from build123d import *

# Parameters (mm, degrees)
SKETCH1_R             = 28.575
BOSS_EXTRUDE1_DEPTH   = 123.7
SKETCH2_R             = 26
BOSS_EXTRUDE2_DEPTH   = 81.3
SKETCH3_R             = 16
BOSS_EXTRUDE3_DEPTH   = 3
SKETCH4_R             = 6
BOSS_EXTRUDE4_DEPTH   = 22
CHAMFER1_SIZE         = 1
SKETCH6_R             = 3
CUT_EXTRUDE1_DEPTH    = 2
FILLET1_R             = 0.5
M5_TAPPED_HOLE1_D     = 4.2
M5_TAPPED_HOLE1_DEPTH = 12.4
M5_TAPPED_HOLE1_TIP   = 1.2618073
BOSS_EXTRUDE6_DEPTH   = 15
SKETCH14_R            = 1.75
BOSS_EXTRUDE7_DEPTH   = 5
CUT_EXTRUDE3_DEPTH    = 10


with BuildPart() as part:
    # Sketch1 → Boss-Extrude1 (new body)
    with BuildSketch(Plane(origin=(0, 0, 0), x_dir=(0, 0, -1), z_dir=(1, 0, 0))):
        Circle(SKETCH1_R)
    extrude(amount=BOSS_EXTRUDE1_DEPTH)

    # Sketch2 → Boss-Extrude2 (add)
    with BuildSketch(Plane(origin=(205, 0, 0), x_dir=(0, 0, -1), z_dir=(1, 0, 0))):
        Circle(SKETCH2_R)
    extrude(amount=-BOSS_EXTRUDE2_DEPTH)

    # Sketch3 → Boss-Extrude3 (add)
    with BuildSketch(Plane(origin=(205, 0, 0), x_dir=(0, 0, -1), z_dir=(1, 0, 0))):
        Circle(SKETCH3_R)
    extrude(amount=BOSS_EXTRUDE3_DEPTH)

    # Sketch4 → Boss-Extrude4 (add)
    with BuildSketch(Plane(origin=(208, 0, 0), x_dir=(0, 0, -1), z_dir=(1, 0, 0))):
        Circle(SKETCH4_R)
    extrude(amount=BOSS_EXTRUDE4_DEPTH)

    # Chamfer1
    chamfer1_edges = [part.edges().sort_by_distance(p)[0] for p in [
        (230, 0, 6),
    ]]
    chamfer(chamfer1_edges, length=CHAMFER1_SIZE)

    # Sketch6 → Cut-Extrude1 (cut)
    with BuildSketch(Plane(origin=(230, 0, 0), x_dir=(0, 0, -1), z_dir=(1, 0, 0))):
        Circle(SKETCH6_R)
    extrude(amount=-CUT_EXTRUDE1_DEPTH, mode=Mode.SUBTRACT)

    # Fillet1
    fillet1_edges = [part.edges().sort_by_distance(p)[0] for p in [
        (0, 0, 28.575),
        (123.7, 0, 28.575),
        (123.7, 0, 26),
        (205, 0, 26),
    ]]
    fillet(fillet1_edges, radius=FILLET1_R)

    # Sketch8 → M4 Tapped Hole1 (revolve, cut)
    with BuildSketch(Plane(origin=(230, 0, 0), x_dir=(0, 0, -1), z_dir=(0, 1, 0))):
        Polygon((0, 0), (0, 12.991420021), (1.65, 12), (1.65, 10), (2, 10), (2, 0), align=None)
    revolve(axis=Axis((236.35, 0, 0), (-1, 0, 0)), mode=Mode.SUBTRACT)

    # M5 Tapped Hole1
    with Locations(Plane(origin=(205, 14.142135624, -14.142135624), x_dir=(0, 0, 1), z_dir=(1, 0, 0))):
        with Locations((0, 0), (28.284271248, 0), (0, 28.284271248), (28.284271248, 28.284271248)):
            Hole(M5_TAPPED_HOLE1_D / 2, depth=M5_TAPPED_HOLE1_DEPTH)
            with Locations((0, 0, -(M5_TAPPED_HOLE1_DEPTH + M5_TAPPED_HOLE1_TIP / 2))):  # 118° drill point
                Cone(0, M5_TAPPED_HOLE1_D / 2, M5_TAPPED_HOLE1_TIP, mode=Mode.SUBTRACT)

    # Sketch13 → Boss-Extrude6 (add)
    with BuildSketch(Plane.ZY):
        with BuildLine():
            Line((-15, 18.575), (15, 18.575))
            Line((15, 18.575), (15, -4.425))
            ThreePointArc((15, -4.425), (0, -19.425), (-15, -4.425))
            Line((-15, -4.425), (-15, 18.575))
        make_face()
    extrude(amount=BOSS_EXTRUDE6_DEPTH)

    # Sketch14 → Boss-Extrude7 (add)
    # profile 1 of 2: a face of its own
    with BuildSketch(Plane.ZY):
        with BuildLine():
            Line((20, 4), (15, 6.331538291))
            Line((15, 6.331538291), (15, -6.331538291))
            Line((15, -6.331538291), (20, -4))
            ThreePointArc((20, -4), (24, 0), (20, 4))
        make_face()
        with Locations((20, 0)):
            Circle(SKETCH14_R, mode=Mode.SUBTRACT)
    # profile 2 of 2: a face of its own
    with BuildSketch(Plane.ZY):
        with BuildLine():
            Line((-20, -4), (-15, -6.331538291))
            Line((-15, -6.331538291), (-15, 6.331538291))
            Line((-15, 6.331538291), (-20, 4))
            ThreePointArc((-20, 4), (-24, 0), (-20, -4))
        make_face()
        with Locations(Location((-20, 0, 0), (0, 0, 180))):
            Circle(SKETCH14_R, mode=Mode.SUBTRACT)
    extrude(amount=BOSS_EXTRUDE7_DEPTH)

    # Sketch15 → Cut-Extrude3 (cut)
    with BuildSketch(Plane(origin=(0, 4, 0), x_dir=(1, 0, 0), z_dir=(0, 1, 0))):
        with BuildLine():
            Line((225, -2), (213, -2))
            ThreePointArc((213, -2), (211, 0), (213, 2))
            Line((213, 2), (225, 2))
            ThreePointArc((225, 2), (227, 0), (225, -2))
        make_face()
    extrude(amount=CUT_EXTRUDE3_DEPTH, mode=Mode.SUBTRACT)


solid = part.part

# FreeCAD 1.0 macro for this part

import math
import FreeCAD as App
import Part
import Sketcher

V = App.Vector
Q = App.Units.Quantity


def edges_at(feature, points):
    """Names of the edges that pass closest to the given points."""
    edges = feature.Shape.Edges
    near = lambda p: min(range(len(edges)), key=lambda i: edges[i].distToShape(Part.Vertex(*p))[0])
    return sorted({f"Edge{near(p) + 1}" for p in points})

doc = App.newDocument("Part")
body = doc.addObject("PartDesign::Body", "Body")

sketch1 = body.newObject("Sketcher::SketchObject", "Sketch")
sketch1.AttachmentSupport = (doc.getObject("YZ_Plane"), [""])
sketch1.MapMode = "FlatFace"
sketch1.addGeometry(Part.Circle(V(0, 0, 0), V(0, 0, 1), 29), False)
sketch1.addConstraint([
    Sketcher.Constraint("Coincident", 0, 3, -1, 1),
    Sketcher.Constraint("Diameter", 0, Q("57.15 mm")),
])
pad1 = body.newObject("PartDesign::Pad", "Pad")
pad1.Profile = sketch1
pad1.Length = 123.7

sketch2 = body.newObject("Sketcher::SketchObject", "Sketch001")
sketch2.AttachmentSupport = (doc.getObject("YZ_Plane"), [""])
sketch2.MapMode = "FlatFace"
sketch2.AttachmentOffset = App.Placement(V(0, 0, 205), App.Rotation())
sketch2.addGeometry(Part.Circle(V(0, 0, 0), V(0, 0, 1), 26), False)
sketch2.addConstraint([
    Sketcher.Constraint("Coincident", 0, 3, -1, 1),
    Sketcher.Constraint("Diameter", 0, Q("52 mm")),
])
pad2 = body.newObject("PartDesign::Pad", "Pad001")
pad2.Profile = sketch2
pad2.Length = 81.3
pad2.Reversed = True

sketch3 = body.newObject("Sketcher::SketchObject", "Sketch002")
sketch3.AttachmentSupport = (doc.getObject("YZ_Plane"), [""])
sketch3.MapMode = "FlatFace"
sketch3.AttachmentOffset = App.Placement(V(0, 0, 205), App.Rotation())
sketch3.addGeometry(Part.Circle(V(0, 0, 0), V(0, 0, 1), 16), False)
sketch3.addConstraint([
    Sketcher.Constraint("Coincident", 0, 3, -1, 1),
    Sketcher.Constraint("Diameter", 0, Q("32 mm")),
])
pad3 = body.newObject("PartDesign::Pad", "Pad002")
pad3.Profile = sketch3
pad3.Length = 3

sketch4 = body.newObject("Sketcher::SketchObject", "Sketch003")
sketch4.AttachmentSupport = (doc.getObject("YZ_Plane"), [""])
sketch4.MapMode = "FlatFace"
sketch4.AttachmentOffset = App.Placement(V(0, 0, 208), App.Rotation())
sketch4.addGeometry(Part.Circle(V(0, 0, 0), V(0, 0, 1), 6), False)
sketch4.addConstraint([
    Sketcher.Constraint("Coincident", 0, 3, -1, 1),
    Sketcher.Constraint("Diameter", 0, Q("12 mm")),
])
pad4 = body.newObject("PartDesign::Pad", "Pad003")
pad4.Profile = sketch4
pad4.Length = 22
doc.recompute()

chamfer = body.newObject("PartDesign::Chamfer", "Chamfer")
chamfer.Base = (pad4, edges_at(pad4, [(230, 0, 6)]))
chamfer.Size = 1

sketch5 = body.newObject("Sketcher::SketchObject", "Sketch004")
sketch5.AttachmentSupport = (doc.getObject("YZ_Plane"), [""])
sketch5.MapMode = "FlatFace"
sketch5.AttachmentOffset = App.Placement(V(0, 0, 230), App.Rotation())
sketch5.addGeometry(Part.Circle(V(0, 0, 0), V(0, 0, 1), 3), False)
sketch5.addConstraint([
    Sketcher.Constraint("Coincident", 0, 3, -1, 1),
    Sketcher.Constraint("Diameter", 0, Q("6 mm")),
])
pocket1 = body.newObject("PartDesign::Pocket", "Pocket")
pocket1.Profile = sketch5
pocket1.Length = 2
doc.recompute()

fillet = body.newObject("PartDesign::Fillet", "Fillet")
fillet.Base = (pocket1, edges_at(pocket1, [
    (0, 0, 28.575),
    (123.7, 0, 28.575),
    (123.7, 0, 26),
    (205, 0, 26),
]))
fillet.Radius = 0.5

sketch6 = body.newObject("Sketcher::SketchObject", "Sketch005")
sketch6.AttachmentSupport = (doc.getObject("XZ_Plane"), [""])
sketch6.MapMode = "FlatFace"
sketch6.addGeometry([
    Part.LineSegment(V(217.01, 0, 0), V(230, 0, 0)),
    Part.LineSegment(V(230, 0, 0), V(230, -2, 0)),
    Part.LineSegment(V(230, -2, 0), V(220, -2, 0)),
    Part.LineSegment(V(220, -2, 0), V(220, -1.65, 0)),
    Part.LineSegment(V(220, -1.65, 0), V(218, -1.65, 0)),
    Part.LineSegment(V(218, -1.65, 0), V(217.01, 0, 0)),
], False)
sketch6.addConstraint([
    Sketcher.Constraint("Coincident", 0, 2, 1, 1),
    Sketcher.Constraint("Coincident", 1, 2, 2, 1),
    Sketcher.Constraint("Coincident", 2, 2, 3, 1),
    Sketcher.Constraint("Coincident", 3, 2, 4, 1),
    Sketcher.Constraint("Coincident", 4, 2, 5, 1),
    Sketcher.Constraint("Coincident", 5, 2, 0, 1),
    Sketcher.Constraint("Horizontal", 0),
    Sketcher.Constraint("Vertical", 1),
    Sketcher.Constraint("Horizontal", 2),
    Sketcher.Constraint("Vertical", 3),
    Sketcher.Constraint("Horizontal", 4),
    Sketcher.Constraint("PointOnObject", 0, 2, -1),
    Sketcher.Constraint("Equal", 4, 1),
    Sketcher.Constraint("DistanceX", 2, 2, 2, 1, Q("10 mm")),
    Sketcher.Constraint("DistanceX", 4, 2, 4, 1, Q("2 mm")),
    Sketcher.Constraint("Angle", 5, Q("121 deg")),
    Sketcher.Constraint("DistanceX", -1, 1, 0, 2, Q("230 mm")),
    Sketcher.Constraint("DistanceY", 3, 1, 3, 2, Q("0.35 mm")),
])
groove = body.newObject("PartDesign::Groove", "Groove")
groove.Profile = sketch6
groove.ReferenceAxis = (sketch6, ["H_Axis"])
groove.Angle = 360

sketch7 = body.newObject("Sketcher::SketchObject", "Sketch006")
sketch7.AttachmentSupport = (doc.getObject("YZ_Plane"), [""])
sketch7.MapMode = "FlatFace"
sketch7.AttachmentOffset = App.Placement(V(0, 0, 205), App.Rotation())
sketch7.addGeometry([
    Part.Circle(V(14.1, -14.1, 0), V(0, 0, 1), 2.1),
    Part.Circle(V(14.1, 14.1, 0), V(0, 0, 1), 2.1),
    Part.Circle(V(-14.1, -14.1, 0), V(0, 0, 1), 2.1),
    Part.Circle(V(-14.1, 14.1, 0), V(0, 0, 1), 2.1),
], False)
sketch7.addConstraint([
    Sketcher.Constraint("Equal", 0, 1),
    Sketcher.Constraint("Equal", 1, 2),
    Sketcher.Constraint("Equal", 2, 3),
    Sketcher.Constraint("Symmetric", 1, 3, 2, 3, -1, 1),
    Sketcher.Constraint("Symmetric", 0, 3, 3, 3, -1, 1),
    Sketcher.Constraint("Symmetric", 0, 3, 2, 3, -2),
    Sketcher.Constraint("Diameter", 0, Q("4.2 mm")),
    Sketcher.Constraint("DistanceY", 0, 3, 1, 3, Q("28.284271 mm")),
    Sketcher.Constraint("DistanceX", 2, 3, 0, 3, Q("28.284271 mm")),
])
doc.recompute()
hole = body.newObject("PartDesign::Hole", "Hole")
hole.Profile = sketch7
hole.ThreadType = "None"
hole.Diameter = 4.2
hole.DepthType = "Dimension"
hole.Depth = 12.4
hole.DrillPoint = "Angled"
hole.DrillPointAngle = 118

sketch8 = body.newObject("Sketcher::SketchObject", "Sketch007")
sketch8.AttachmentSupport = (doc.getObject("YZ_Plane"), [""])
sketch8.MapMode = "FlatFace"
sketch8.addGeometry([
    Part.LineSegment(V(19, 15, 0), V(19, -15, 0)),
    Part.LineSegment(V(19, -15, 0), V(-4, -15, 0)),
    Part.ArcOfCircle(Part.Circle(V(-4, 0, 0), V(0, 0, 1), 15), math.radians(90), math.radians(270)),
    Part.LineSegment(V(-4, 15, 0), V(19, 15, 0)),
], False)
sketch8.addConstraint([
    Sketcher.Constraint("Coincident", 0, 2, 1, 1),
    Sketcher.Constraint("Tangent", 1, 2, 2, 2),
    Sketcher.Constraint("Tangent", 2, 1, 3, 1),
    Sketcher.Constraint("Coincident", 3, 2, 0, 1),
    Sketcher.Constraint("Vertical", 0),
    Sketcher.Constraint("Horizontal", 1),
    Sketcher.Constraint("Horizontal", 3),
    Sketcher.Constraint("PointOnObject", 2, 3, -1),
    Sketcher.Constraint("Radius", 2, Q("15 mm")),
    Sketcher.Constraint("DistanceX", 1, 2, 1, 1, Q("23 mm")),
    Sketcher.Constraint("DistanceX", 2, 3, -1, 1, Q("4.425 mm")),
])
pad5 = body.newObject("PartDesign::Pad", "Pad004")
pad5.Profile = sketch8
pad5.Length = 15
pad5.Reversed = True

sketch9 = body.newObject("Sketcher::SketchObject", "Sketch008")
sketch9.AttachmentSupport = (doc.getObject("YZ_Plane"), [""])
sketch9.MapMode = "FlatFace"
sketch9.addGeometry([
    Part.LineSegment(V(4, 20, 0), V(6.3, 15, 0)),
    Part.LineSegment(V(6.3, 15, 0), V(-6.3, 15, 0)),
    Part.LineSegment(V(-6.3, 15, 0), V(-4, 20, 0)),
    Part.ArcOfCircle(Part.Circle(V(0, 20, 0), V(0, 0, 1), 4), math.radians(0), math.radians(180)),
    Part.Circle(V(0, 20, 0), V(0, 0, 1), 1.8),
    Part.LineSegment(V(-4, -20, 0), V(-6.3, -15, 0)),
    Part.LineSegment(V(-6.3, -15, 0), V(6.3, -15, 0)),
    Part.LineSegment(V(6.3, -15, 0), V(4, -20, 0)),
    Part.ArcOfCircle(Part.Circle(V(0, -20, 0), V(0, 0, 1), 4), math.radians(180), math.radians(360)),
    Part.Circle(V(0, -20, 0), V(0, 0, 1), 1.8),
], False)
sketch9.addConstraint([
    Sketcher.Constraint("Coincident", 0, 2, 1, 1),
    Sketcher.Constraint("Coincident", 1, 2, 2, 1),
    Sketcher.Constraint("Coincident", 2, 2, 3, 2),
    Sketcher.Constraint("Coincident", 3, 1, 0, 1),
    Sketcher.Constraint("Coincident", 5, 2, 6, 1),
    Sketcher.Constraint("Coincident", 6, 2, 7, 1),
    Sketcher.Constraint("Coincident", 7, 2, 8, 2),
    Sketcher.Constraint("Coincident", 8, 1, 5, 1),
    Sketcher.Constraint("Horizontal", 1),
    Sketcher.Constraint("Horizontal", 6),
    Sketcher.Constraint("Coincident", 4, 3, 3, 3),
    Sketcher.Constraint("Coincident", 9, 3, 8, 3),
    Sketcher.Constraint("Equal", 3, 8),
    Sketcher.Constraint("Equal", 4, 9),
    Sketcher.Constraint("Symmetric", 3, 3, 8, 3, -1, 1),
    Sketcher.Constraint("Symmetric", 0, 2, 5, 2, -1, 1),
    Sketcher.Constraint("Symmetric", 2, 2, 3, 1, -2),
    Sketcher.Constraint("Parallel", 0, 5),
    Sketcher.Constraint("Parallel", 2, 7),
    Sketcher.Constraint("Horizontal", 4, 3, 2, 2),
    Sketcher.Constraint("Horizontal", 9, 3, 7, 2),
    Sketcher.Constraint("Vertical", 1, 2, 5, 2),
    Sketcher.Constraint("Radius", 3, Q("4 mm")),
    Sketcher.Constraint("Diameter", 4, Q("3.5 mm")),
    Sketcher.Constraint("Angle", 0, Q("-65 deg")),
    Sketcher.Constraint("DistanceY", -1, 1, 3, 3, Q("20 mm")),
    Sketcher.Constraint("DistanceY", -1, 1, 0, 2, Q("15 mm")),
])
pad6 = body.newObject("PartDesign::Pad", "Pad005")
pad6.Profile = sketch9
pad6.Length = 5
pad6.Reversed = True

sketch10 = body.newObject("Sketcher::SketchObject", "Sketch009")
sketch10.AttachmentSupport = (doc.getObject("XZ_Plane"), [""])
sketch10.MapMode = "FlatFace"
sketch10.AttachmentOffset = App.Placement(V(0, 0, -4), App.Rotation())
sketch10.addGeometry([
    Part.LineSegment(V(213, 2, 0), V(225, 2, 0)),
    Part.ArcOfCircle(Part.Circle(V(225, 0, 0), V(0, 0, 1), 2), math.radians(-90), math.radians(90)),
    Part.LineSegment(V(225, -2, 0), V(213, -2, 0)),
    Part.ArcOfCircle(Part.Circle(V(213, 0, 0), V(0, 0, 1), 2), math.radians(90), math.radians(270)),
], False)
sketch10.addConstraint([
    Sketcher.Constraint("Tangent", 0, 2, 1, 2),
    Sketcher.Constraint("Tangent", 1, 1, 2, 1),
    Sketcher.Constraint("Tangent", 2, 2, 3, 2),
    Sketcher.Constraint("Tangent", 3, 1, 0, 1),
    Sketcher.Constraint("Horizontal", 0),
    Sketcher.Constraint("Horizontal", 2),
    Sketcher.Constraint("PointOnObject", 1, 3, -1),
    Sketcher.Constraint("Radius", 1, Q("2 mm")),
    Sketcher.Constraint("DistanceX", 0, 1, 0, 2, Q("12 mm")),
    Sketcher.Constraint("DistanceX", -1, 1, 1, 3, Q("225 mm")),
])
pocket2 = body.newObject("PartDesign::Pocket", "Pocket001")
pocket2.Profile = sketch10
pocket2.Length = 10

doc.recompute()
